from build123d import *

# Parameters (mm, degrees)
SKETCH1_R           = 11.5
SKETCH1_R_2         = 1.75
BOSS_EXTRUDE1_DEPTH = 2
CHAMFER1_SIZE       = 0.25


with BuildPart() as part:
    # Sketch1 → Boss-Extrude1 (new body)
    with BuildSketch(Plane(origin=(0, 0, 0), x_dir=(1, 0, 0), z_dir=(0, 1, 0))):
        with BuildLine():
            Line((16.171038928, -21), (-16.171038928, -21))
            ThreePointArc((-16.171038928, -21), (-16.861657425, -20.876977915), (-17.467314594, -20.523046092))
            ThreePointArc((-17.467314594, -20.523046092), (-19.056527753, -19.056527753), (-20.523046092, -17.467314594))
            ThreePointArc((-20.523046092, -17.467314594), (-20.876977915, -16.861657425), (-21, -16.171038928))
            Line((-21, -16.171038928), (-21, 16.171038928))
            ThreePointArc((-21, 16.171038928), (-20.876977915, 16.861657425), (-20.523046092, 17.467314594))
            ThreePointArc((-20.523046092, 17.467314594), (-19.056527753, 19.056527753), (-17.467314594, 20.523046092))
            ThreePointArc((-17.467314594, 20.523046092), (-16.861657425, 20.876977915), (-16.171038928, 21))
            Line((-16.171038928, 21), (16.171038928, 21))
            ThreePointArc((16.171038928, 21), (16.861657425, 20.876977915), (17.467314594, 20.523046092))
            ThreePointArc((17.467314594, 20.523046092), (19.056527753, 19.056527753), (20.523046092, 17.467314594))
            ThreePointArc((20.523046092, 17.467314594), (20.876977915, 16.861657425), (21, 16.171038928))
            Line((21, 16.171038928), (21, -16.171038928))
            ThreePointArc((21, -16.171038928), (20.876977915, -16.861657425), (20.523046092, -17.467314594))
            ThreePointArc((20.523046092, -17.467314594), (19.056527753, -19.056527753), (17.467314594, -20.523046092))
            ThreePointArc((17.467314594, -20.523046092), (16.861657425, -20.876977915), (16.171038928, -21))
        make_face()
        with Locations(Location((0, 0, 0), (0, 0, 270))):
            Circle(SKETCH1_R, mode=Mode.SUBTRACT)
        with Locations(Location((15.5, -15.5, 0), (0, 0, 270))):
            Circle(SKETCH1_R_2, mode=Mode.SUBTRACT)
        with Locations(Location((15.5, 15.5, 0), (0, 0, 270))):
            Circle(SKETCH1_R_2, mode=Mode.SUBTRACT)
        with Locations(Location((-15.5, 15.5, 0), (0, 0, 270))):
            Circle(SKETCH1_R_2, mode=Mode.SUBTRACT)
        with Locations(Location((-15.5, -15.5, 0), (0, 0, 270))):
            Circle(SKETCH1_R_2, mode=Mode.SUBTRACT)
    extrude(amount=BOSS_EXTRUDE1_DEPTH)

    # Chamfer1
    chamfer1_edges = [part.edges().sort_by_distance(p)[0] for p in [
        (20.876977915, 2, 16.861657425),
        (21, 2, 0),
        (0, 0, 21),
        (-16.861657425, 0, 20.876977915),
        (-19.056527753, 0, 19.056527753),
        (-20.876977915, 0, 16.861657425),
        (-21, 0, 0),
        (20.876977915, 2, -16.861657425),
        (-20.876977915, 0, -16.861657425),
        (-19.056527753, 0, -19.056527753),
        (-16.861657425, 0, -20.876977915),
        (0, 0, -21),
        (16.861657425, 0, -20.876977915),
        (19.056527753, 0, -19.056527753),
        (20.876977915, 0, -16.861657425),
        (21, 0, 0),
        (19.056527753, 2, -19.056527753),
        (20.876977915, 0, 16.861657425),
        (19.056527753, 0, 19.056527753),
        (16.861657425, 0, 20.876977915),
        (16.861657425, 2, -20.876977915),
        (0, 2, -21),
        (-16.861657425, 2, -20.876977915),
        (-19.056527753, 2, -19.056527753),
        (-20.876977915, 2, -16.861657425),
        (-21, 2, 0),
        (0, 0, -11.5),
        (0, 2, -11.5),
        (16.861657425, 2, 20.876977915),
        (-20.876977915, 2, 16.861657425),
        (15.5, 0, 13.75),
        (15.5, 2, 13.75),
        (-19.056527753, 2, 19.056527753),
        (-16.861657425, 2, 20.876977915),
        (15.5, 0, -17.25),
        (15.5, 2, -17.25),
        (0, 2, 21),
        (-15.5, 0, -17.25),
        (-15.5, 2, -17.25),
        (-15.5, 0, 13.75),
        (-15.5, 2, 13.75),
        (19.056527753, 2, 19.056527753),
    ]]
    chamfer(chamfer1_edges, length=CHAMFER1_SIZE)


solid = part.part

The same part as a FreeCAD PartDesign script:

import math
import FreeCAD as App
import Part
import Sketcher
from FreeCAD import Vector
Q = App.Units.Quantity


def edges_at(feature, points):
    """Names of the edges that pass closest to the given points."""
    edges = feature.Shape.Edges
    near = lambda p: min(range(len(edges)), key=lambda i: edges[i].distToShape(Part.Vertex(*p))[0])
    return sorted({f"Edge{near(p) + 1}" for p in points})

doc = App.newDocument("Part")
params = doc.addObject("Spreadsheet::Sheet", "Params")
for row, (alias, value) in enumerate([
    ("sketch1_diameter", "23 mm"),
    ("sketch1_radius", "2 mm"),
    ("sketch1_diameter2", "3.5 mm"),
    ("sketch1_radius2", "26.95 mm"),
    ("pad1_length", "2 mm"),
    ("chamfer_size", "0.25 mm"),
], start=1):
    params.set(f"A{row}", alias)
    params.set(f"B{row}", "=" + value)
    params.setAlias(f"B{row}", alias)

body = doc.addObject("PartDesign::Body", "Body")

# Sketch on XZ plane
sketch1 = doc.addObject("Sketcher::SketchObject", "Sketch")
body.addObject(sketch1)
sketch1.AttachmentSupport = (doc.XZ_Plane, [""])
sketch1.MapMode = "FlatFace"
sketch1.addGeometry(Part.LineSegment(Vector(-16.2, 21, 0), Vector(16.2, 21, 0)), False)
sketch1.addGeometry(Part.ArcOfCircle(Part.Circle(Vector(16.2, 19, 0), Vector(0, 0, 1), 2), math.radians(50), math.radians(90)), False)
sketch1.addGeometry(Part.ArcOfCircle(Part.Circle(Vector(0, 0, 0), Vector(0, 0, 1), 27), math.radians(40.4), math.radians(49.6)), False)
sketch1.addGeometry(Part.ArcOfCircle(Part.Circle(Vector(19, 16.2, 0), Vector(0, 0, 1), 2), math.radians(0), math.radians(40)), False)
sketch1.addGeometry(Part.LineSegment(Vector(21, 16.2, 0), Vector(21, -16.2, 0)), False)
sketch1.addGeometry(Part.ArcOfCircle(Part.Circle(Vector(19, -16.2, 0), Vector(0, 0, 1), 2), math.radians(-40), math.radians(0)), False)
sketch1.addGeometry(Part.ArcOfCircle(Part.Circle(Vector(0, 0, 0), Vector(0, 0, 1), 27), math.radians(-49.6), math.radians(-40.4)), False)
sketch1.addGeometry(Part.ArcOfCircle(Part.Circle(Vector(16.2, -19, 0), Vector(0, 0, 1), 2), math.radians(-90), math.radians(-50)), False)
sketch1.addGeometry(Part.LineSegment(Vector(16.2, -21, 0), Vector(-16.2, -21, 0)), False)
sketch1.addGeometry(Part.ArcOfCircle(Part.Circle(Vector(-16.2, -19, 0), Vector(0, 0, 1), 2), math.radians(-130), math.radians(-90)), False)
sketch1.addGeometry(Part.ArcOfCircle(Part.Circle(Vector(0, 0, 0), Vector(0, 0, 1), 27), math.radians(-139.6), math.radians(-130.4)), False)
sketch1.addGeometry(Part.ArcOfCircle(Part.Circle(Vector(-19, -16.2, 0), Vector(0, 0, 1), 2), math.radians(180), math.radians(220)), False)
sketch1.addGeometry(Part.LineSegment(Vector(-21, -16.2, 0), Vector(-21, 16.2, 0)), False)
sketch1.addGeometry(Part.ArcOfCircle(Part.Circle(Vector(-19, 16.2, 0), Vector(0, 0, 1), 2), math.radians(140), math.radians(180)), False)
sketch1.addGeometry(Part.ArcOfCircle(Part.Circle(Vector(0, 0, 0), Vector(0, 0, 1), 27), math.radians(130.4), math.radians(139.6)), False)
sketch1.addGeometry(Part.ArcOfCircle(Part.Circle(Vector(-16.2, 19, 0), Vector(0, 0, 1), 2), math.radians(90), math.radians(130)), False)
sketch1.addGeometry(Part.Circle(Vector(15.5, 15.5, 0), Vector(0, 0, 1), 1.8), False)
sketch1.addGeometry(Part.Circle(Vector(-15.5, 15.5, 0), Vector(0, 0, 1), 1.8), False)
sketch1.addGeometry(Part.Circle(Vector(15.5, -15.5, 0), Vector(0, 0, 1), 1.8), False)
sketch1.addGeometry(Part.Circle(Vector(0, 0, 0), Vector(0, 0, 1), 11.5), False)
sketch1.addGeometry(Part.Circle(Vector(-15.5, -15.5, 0), Vector(0, 0, 1), 1.8), False)
sketch1.addConstraint(Sketcher.Constraint("Tangent", 0, 2, 1, 2))
sketch1.addConstraint(Sketcher.Constraint("Tangent", 1, 1, 2, 2))
sketch1.addConstraint(Sketcher.Constraint("Tangent", 2, 1, 3, 2))
sketch1.addConstraint(Sketcher.Constraint("Tangent", 3, 1, 4, 1))
sketch1.addConstraint(Sketcher.Constraint("Tangent", 4, 2, 5, 2))
sketch1.addConstraint(Sketcher.Constraint("Tangent", 5, 1, 6, 2))
sketch1.addConstraint(Sketcher.Constraint("Tangent", 6, 1, 7, 2))
sketch1.addConstraint(Sketcher.Constraint("Tangent", 7, 1, 8, 1))
sketch1.addConstraint(Sketcher.Constraint("Tangent", 8, 2, 9, 2))
sketch1.addConstraint(Sketcher.Constraint("Tangent", 9, 1, 10, 2))
sketch1.addConstraint(Sketcher.Constraint("Tangent", 10, 1, 11, 2))
sketch1.addConstraint(Sketcher.Constraint("Tangent", 11, 1, 12, 1))
sketch1.addConstraint(Sketcher.Constraint("Tangent", 12, 2, 13, 2))
sketch1.addConstraint(Sketcher.Constraint("Tangent", 13, 1, 14, 2))
sketch1.addConstraint(Sketcher.Constraint("Tangent", 14, 1, 15, 2))
sketch1.addConstraint(Sketcher.Constraint("Tangent", 15, 1, 0, 1))
sketch1.addConstraint(Sketcher.Constraint("Horizontal", 0))
sketch1.addConstraint(Sketcher.Constraint("Vertical", 4))
sketch1.addConstraint(Sketcher.Constraint("Horizontal", 8))
sketch1.addConstraint(Sketcher.Constraint("Vertical", 12))
sketch1.addConstraint(Sketcher.Constraint("Coincident", 2, 3, -1, 1))
sketch1.addConstraint(Sketcher.Constraint("Coincident", 6, 3, -1, 1))
sketch1.addConstraint(Sketcher.Constraint("Coincident", 10, 3, -1, 1))
sketch1.addConstraint(Sketcher.Constraint("Coincident", 14, 3, -1, 1))
sketch1.addConstraint(Sketcher.Constraint("Coincident", 19, 3, -1, 1))
sketch1.addConstraint(Sketcher.Constraint("Equal", 1, 3))
sketch1.addConstraint(Sketcher.Constraint("Equal", 3, 5))
sketch1.addConstraint(Sketcher.Constraint("Equal", 2, 6))
sketch1.addConstraint(Sketcher.Constraint("Equal", 5, 7))
sketch1.addConstraint(Sketcher.Constraint("Equal", 7, 9))
sketch1.addConstraint(Sketcher.Constraint("Equal", 6, 10))
sketch1.addConstraint(Sketcher.Constraint("Equal", 9, 11))
sketch1.addConstraint(Sketcher.Constraint("Equal", 11, 13))
sketch1.addConstraint(Sketcher.Constraint("Equal", 10, 14))
sketch1.addConstraint(Sketcher.Constraint("Equal", 13, 15))
sketch1.addConstraint(Sketcher.Constraint("Equal", 16, 17))
sketch1.addConstraint(Sketcher.Constraint("Equal", 17, 18))
sketch1.addConstraint(Sketcher.Constraint("Equal", 18, 20))
sketch1.addConstraint(Sketcher.Constraint("Symmetric", 17, 3, 18, 3, -1, 1))
sketch1.addConstraint(Sketcher.Constraint("Symmetric", 16, 3, 20, 3, -1, 1))
sketch1.addConstraint(Sketcher.Constraint("Symmetric", 16, 3, 17, 3, -2))
sketch1.addConstraint(Sketcher.Constraint("Horizontal", 5, 3, 11, 3))
sketch1.addConstraint(Sketcher.Constraint("Vertical", 1, 3, 7, 3))
sketch1.addConstraint(Sketcher.Constraint("Equal", 8, 4))
sketch1.addConstraint(Sketcher.Constraint("Diameter", 19, Q("23 mm")))
sketch1.addConstraint(Sketcher.Constraint("Radius", 1, Q("2 mm")))
sketch1.addConstraint(Sketcher.Constraint("Diameter", 16, Q("3.5 mm")))
sketch1.addConstraint(Sketcher.Constraint("Radius", 2, Q("26.95 mm")))
sketch1.addConstraint(Sketcher.Constraint("DistanceY", -1, 1, 1, 3, Q("19 mm")))
sketch1.addConstraint(Sketcher.Constraint("DistanceX", -1, 1, 16, 3, Q("15.5 mm")))
sketch1.addConstraint(Sketcher.Constraint("DistanceY", -1, 1, 16, 3, Q("15.5 mm")))
sketch1.setExpression("Constraints[44]", "Params.sketch1_diameter")
sketch1.setExpression("Constraints[45]", "Params.sketch1_radius")
sketch1.setExpression("Constraints[46]", "Params.sketch1_diameter2")
sketch1.setExpression("Constraints[47]", "Params.sketch1_radius2")
pad1 = doc.addObject("PartDesign::Pad", "Pad")
body.addObject(pad1)
pad1.Profile = sketch1
pad1.setExpression("Length", "Params.pad1_length")
pad1.Reversed = True
doc.recompute()

chamfer = doc.addObject("PartDesign::Chamfer", "Chamfer")
body.addObject(chamfer)
chamfer.Base = (pad1, edges_at(pad1, [
    (20.877, 2, 16.862),
    (21, 2, 0),
    (0, 0, 21),
    (-16.862, 0, 20.877),
    (-19.057, 0, 19.057),
    (-20.877, 0, 16.862),
    (-21, 0, 0),
    (20.877, 2, -16.862),
    (-20.877, 0, -16.862),
    (-19.057, 0, -19.057),
    (-16.862, 0, -20.877),
    (0, 0, -21),
    (16.862, 0, -20.877),
    (19.057, 0, -19.057),
    (20.877, 0, -16.862),
    (21, 0, 0),
    (19.057, 2, -19.057),
    (20.877, 0, 16.862),
    (19.057, 0, 19.057),
    (16.862, 0, 20.877),
    (16.862, 2, -20.877),
    (0, 2, -21),
    (-16.862, 2, -20.877),
    (-19.057, 2, -19.057),
    (-20.877, 2, -16.862),
    (-21, 2, 0),
    (0, 0, -11.5),
    (0, 2, -11.5),
    (16.862, 2, 20.877),
    (-20.877, 2, 16.862),
    (15.5, 0, 13.75),
    (15.5, 2, 13.75),
    (-19.057, 2, 19.057),
    (-16.862, 2, 20.877),
    (15.5, 0, -17.25),
    (15.5, 2, -17.25),
    (0, 2, 21),
    (-15.5, 0, -17.25),
    (-15.5, 2, -17.25),
    (-15.5, 0, 13.75),
    (-15.5, 2, 13.75),
    (19.057, 2, 19.057),
]))
chamfer.setExpression("Size", "Params.chamfer_size")

doc.recompute()
